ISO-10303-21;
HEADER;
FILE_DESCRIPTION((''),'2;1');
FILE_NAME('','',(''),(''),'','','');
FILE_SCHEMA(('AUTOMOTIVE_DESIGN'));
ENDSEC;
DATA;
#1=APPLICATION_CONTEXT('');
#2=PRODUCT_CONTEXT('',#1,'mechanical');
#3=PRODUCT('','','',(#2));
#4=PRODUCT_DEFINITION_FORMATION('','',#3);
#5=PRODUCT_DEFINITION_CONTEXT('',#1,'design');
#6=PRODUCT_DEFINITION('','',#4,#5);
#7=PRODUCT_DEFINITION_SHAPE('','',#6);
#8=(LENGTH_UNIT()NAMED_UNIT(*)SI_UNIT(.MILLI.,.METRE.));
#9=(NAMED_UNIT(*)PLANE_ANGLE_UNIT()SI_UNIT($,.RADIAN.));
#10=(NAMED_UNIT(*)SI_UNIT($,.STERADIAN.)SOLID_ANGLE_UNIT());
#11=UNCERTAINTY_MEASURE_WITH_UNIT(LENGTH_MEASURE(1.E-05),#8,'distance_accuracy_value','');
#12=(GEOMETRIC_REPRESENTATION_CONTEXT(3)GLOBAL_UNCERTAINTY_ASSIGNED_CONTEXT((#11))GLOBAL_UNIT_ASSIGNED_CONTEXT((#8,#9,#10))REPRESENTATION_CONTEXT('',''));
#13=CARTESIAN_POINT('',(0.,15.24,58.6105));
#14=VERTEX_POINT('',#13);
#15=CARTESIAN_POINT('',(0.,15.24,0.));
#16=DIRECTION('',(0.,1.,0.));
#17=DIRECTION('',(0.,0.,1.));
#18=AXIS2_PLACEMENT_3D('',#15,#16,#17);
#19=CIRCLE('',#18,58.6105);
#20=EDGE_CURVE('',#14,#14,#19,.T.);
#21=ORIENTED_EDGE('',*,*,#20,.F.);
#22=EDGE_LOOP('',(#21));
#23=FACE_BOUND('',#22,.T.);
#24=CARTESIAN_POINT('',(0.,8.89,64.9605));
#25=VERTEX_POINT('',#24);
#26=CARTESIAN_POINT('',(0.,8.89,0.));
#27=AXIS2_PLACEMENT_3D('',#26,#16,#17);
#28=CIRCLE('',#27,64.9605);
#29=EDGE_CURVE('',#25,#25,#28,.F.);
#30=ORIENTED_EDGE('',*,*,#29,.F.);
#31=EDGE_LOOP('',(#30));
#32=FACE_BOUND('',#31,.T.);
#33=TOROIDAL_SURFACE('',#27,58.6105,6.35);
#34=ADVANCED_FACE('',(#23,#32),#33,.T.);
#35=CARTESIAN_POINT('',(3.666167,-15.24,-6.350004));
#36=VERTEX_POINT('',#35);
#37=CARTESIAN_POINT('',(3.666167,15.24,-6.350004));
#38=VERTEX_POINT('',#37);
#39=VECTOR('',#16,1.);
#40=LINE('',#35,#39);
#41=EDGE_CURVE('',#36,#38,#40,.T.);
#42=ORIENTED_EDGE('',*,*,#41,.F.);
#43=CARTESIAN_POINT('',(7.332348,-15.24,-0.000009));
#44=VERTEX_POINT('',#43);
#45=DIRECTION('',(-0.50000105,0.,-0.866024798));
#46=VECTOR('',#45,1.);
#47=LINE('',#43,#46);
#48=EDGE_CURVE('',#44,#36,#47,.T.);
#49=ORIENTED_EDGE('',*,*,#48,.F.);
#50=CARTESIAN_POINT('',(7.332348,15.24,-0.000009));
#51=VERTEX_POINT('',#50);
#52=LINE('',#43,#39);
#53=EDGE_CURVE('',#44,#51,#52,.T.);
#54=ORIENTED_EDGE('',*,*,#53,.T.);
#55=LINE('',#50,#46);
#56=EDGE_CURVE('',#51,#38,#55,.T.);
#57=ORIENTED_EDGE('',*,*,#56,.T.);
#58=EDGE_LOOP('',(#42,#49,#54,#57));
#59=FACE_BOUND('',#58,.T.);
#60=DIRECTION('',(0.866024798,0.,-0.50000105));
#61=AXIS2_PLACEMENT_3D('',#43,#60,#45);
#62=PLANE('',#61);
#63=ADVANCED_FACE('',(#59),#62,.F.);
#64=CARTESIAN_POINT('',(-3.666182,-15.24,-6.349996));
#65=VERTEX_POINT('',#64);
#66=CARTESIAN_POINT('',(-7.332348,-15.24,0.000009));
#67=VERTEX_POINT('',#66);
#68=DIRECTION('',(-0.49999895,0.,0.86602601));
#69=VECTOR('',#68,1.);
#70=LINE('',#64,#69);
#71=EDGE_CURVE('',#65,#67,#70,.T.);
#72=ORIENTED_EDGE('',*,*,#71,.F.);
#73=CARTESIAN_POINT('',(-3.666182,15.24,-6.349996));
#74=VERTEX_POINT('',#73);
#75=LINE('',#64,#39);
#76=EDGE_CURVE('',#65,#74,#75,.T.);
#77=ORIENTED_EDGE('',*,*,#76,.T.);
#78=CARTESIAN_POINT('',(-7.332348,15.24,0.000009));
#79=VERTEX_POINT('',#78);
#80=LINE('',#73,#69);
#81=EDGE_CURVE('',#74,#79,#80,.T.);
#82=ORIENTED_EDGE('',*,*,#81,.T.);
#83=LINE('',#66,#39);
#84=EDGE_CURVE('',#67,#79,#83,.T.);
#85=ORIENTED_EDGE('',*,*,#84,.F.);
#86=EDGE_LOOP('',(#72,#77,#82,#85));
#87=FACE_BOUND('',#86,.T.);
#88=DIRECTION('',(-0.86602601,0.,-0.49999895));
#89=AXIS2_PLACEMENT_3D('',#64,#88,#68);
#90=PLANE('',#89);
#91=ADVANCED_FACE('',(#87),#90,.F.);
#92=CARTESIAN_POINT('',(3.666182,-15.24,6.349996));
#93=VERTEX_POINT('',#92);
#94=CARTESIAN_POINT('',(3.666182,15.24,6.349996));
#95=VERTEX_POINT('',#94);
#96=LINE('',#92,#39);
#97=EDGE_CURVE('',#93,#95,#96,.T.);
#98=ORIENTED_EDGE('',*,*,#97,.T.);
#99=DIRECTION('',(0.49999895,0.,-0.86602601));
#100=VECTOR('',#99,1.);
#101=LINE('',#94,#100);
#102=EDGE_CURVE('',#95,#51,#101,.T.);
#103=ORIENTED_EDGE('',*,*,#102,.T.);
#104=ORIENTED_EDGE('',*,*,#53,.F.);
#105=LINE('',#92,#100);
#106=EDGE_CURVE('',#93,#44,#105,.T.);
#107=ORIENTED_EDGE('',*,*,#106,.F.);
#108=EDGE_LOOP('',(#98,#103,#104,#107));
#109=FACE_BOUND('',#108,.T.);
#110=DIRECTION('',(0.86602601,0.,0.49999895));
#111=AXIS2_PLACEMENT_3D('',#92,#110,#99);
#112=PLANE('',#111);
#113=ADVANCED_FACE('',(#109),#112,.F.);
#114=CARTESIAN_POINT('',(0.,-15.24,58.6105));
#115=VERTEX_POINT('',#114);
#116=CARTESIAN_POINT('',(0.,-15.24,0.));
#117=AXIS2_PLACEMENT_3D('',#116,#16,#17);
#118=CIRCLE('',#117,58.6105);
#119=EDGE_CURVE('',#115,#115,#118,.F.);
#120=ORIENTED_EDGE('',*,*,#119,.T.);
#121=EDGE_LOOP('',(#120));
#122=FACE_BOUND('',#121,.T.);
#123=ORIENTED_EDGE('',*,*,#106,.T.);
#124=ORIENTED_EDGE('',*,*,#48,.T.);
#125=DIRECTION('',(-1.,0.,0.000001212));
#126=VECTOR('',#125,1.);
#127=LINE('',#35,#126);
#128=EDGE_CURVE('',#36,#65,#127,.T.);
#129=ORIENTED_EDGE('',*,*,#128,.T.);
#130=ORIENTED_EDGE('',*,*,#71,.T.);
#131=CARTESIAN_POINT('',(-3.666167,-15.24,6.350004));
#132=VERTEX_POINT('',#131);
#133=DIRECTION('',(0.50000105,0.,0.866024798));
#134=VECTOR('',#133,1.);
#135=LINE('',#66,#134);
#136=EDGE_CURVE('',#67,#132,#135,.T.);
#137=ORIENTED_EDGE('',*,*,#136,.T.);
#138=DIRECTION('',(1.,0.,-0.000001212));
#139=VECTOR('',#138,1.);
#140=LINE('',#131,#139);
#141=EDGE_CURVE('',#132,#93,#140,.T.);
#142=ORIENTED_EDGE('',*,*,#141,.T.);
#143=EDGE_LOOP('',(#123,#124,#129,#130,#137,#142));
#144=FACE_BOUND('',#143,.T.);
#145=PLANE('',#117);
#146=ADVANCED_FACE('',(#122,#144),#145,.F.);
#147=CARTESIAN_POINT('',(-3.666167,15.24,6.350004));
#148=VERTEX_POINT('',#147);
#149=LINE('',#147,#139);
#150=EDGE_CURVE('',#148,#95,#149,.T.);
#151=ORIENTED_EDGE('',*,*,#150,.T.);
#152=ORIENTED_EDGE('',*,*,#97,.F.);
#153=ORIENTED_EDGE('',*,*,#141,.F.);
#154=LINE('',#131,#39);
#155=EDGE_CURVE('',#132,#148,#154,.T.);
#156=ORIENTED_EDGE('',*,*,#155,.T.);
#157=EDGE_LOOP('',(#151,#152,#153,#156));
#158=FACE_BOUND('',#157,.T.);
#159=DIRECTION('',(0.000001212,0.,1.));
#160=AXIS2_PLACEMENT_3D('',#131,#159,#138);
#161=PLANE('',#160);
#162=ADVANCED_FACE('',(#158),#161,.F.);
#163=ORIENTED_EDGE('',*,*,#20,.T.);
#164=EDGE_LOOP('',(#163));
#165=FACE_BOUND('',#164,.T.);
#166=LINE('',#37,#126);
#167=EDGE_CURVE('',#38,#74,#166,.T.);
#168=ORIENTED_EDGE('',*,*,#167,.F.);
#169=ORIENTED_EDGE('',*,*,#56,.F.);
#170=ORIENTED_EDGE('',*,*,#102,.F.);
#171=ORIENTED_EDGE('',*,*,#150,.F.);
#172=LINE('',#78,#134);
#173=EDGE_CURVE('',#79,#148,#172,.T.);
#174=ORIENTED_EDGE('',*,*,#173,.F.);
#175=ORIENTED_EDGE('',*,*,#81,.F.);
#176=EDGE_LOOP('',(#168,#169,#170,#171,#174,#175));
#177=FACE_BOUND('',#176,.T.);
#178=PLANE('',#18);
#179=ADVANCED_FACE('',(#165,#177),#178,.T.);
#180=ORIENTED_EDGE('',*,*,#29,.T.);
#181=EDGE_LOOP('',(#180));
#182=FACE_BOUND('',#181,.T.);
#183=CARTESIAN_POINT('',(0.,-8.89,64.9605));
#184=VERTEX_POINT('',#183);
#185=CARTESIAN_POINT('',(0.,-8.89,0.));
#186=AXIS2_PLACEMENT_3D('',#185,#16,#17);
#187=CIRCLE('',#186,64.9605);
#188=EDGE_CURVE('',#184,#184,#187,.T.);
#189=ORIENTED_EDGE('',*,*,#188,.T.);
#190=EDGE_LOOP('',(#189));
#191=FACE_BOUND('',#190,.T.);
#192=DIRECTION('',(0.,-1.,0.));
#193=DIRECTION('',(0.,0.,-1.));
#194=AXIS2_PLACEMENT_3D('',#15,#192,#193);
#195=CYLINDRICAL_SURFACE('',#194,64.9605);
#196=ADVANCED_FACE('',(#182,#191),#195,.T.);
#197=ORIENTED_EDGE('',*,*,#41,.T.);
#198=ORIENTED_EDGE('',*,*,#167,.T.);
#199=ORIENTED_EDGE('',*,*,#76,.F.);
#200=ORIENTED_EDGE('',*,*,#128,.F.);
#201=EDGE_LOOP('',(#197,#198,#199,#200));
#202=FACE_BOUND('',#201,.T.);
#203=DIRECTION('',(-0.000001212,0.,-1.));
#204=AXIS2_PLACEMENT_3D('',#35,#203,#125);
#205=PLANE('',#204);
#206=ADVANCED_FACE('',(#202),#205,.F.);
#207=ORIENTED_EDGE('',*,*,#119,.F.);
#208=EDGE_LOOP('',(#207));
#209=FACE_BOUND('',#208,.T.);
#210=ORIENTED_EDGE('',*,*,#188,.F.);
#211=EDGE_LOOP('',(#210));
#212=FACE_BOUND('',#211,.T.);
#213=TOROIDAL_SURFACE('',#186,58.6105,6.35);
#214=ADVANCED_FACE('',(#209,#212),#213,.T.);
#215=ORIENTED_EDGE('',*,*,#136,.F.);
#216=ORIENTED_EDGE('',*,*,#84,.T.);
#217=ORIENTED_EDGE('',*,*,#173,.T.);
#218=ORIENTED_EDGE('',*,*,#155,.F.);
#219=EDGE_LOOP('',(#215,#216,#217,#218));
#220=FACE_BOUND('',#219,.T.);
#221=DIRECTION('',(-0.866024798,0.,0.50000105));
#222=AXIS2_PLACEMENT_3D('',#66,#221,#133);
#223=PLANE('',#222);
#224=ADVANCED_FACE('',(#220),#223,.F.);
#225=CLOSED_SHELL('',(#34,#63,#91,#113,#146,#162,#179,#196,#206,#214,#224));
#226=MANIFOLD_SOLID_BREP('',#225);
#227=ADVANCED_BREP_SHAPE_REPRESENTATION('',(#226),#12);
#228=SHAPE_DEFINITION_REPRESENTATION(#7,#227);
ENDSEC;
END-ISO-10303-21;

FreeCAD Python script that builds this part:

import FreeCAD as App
import Part
import Sketcher
from FreeCAD import Vector
Q = App.Units.Quantity


def edges_at(feature, points):
    """Names of the edges that pass closest to the given points."""
    edges = feature.Shape.Edges
    near = lambda p: min(range(len(edges)), key=lambda i: edges[i].distToShape(Part.Vertex(*p))[0])
    return sorted({f"Edge{near(p) + 1}" for p in points})


def add_polygon(sketch, points):
    """Adds a closed chain of lines whose ends are joined by coincident constraints."""
    first, n = sketch.GeometryCount, len(points)
    for a, b in zip(points, points[1:] + points[:1]):
        sketch.addGeometry(Part.LineSegment(App.Vector(*a, 0), App.Vector(*b, 0)), False)
    for i in range(n):
        sketch.addConstraint(Sketcher.Constraint("Coincident", first + i, 2, first + (i + 1) % n, 1))

doc = App.newDocument("Part")
params = doc.addObject("Spreadsheet::Sheet", "Params")
for row, (alias, value) in enumerate([
    ("sketch1_diameter", "5.115 in"),
    ("pad1_length", "1.2 in"),
    ("pocket1_length", "1.2 in"),
    ("fillet_radius", "0.25 in"),
], start=1):
    params.set(f"A{row}", alias)
    params.set(f"B{row}", "=" + value)
    params.setAlias(f"B{row}", alias)

body = doc.addObject("PartDesign::Body", "Body")

sketch1 = body.newObject("Sketcher::SketchObject", "Sketch")
sketch1.AttachmentSupport = (doc.getObject("XZ_Plane"), [""])
sketch1.MapMode = "FlatFace"
sketch1.addGeometry(Part.Circle(Vector(0, 0, 0), Vector(0, 0, 1), 64.9605), False)
sketch1.addConstraint([
    Sketcher.Constraint("Coincident", 0, 3, -1, 1),
    Sketcher.Constraint("Diameter", 0, Q("5.115 in")),
])
sketch1.setExpression("Constraints[1]", "Params.sketch1_diameter")
pad1 = body.newObject("PartDesign::Pad", "Pad")
pad1.Profile = sketch1
pad1.setExpression("Length", "Params.pad1_length")
pad1.Midplane = True

sketch2 = body.newObject("Sketcher::SketchObject", "Sketch001")
sketch2.AttachmentSupport = (doc.getObject("XZ_Plane"), [""])
sketch2.MapMode = "FlatFace"
sketch2.AttachmentOffset = App.Placement(Vector(0, 0, -0.6 * 25.4), App.Rotation())
add_polygon(sketch2, [(7.332348, -0.000009), (3.666167, -6.350004), (-3.666182, -6.349996), (-7.332348, 0.000009), (-3.666167, 6.350004), (3.666182, 6.349996)])
sketch2.addConstraint([
    Sketcher.Constraint("Symmetric", 0, 2, 3, 2, -1, 1),
    Sketcher.Constraint("Symmetric", 1, 2, 4, 2, -1, 1),
    Sketcher.Constraint("Symmetric", 2, 2, 5, 2, -1, 1),
    Sketcher.Constraint("Equal", 0, 1),
    Sketcher.Constraint("Equal", 1, 2),
    Sketcher.Constraint("DistanceY", 1, 2, 3, 2, Q("0.5 in")),
    Sketcher.Constraint("DistanceY", 0, 2, -1, 1, Q("0.2500002 in")),
    Sketcher.Constraint("DistanceY", 1, 2, 2, 2, Q("0.2500002 in")),
    Sketcher.Constraint("Distance", 0, 7.332348),
])
pocket1 = body.newObject("PartDesign::Pocket", "Pocket")
pocket1.Profile = sketch2
pocket1.setExpression("Length", "Params.pocket1_length")
pocket1.Reversed = True
doc.recompute()

fillet = body.newObject("PartDesign::Fillet", "Fillet")
fillet.Base = (pocket1, edges_at(pocket1, [(-64.96, -15.24, 0), (-64.96, 15.24, 0)]))
fillet.setExpression("Radius", "Params.fillet_radius")

doc.recompute()
